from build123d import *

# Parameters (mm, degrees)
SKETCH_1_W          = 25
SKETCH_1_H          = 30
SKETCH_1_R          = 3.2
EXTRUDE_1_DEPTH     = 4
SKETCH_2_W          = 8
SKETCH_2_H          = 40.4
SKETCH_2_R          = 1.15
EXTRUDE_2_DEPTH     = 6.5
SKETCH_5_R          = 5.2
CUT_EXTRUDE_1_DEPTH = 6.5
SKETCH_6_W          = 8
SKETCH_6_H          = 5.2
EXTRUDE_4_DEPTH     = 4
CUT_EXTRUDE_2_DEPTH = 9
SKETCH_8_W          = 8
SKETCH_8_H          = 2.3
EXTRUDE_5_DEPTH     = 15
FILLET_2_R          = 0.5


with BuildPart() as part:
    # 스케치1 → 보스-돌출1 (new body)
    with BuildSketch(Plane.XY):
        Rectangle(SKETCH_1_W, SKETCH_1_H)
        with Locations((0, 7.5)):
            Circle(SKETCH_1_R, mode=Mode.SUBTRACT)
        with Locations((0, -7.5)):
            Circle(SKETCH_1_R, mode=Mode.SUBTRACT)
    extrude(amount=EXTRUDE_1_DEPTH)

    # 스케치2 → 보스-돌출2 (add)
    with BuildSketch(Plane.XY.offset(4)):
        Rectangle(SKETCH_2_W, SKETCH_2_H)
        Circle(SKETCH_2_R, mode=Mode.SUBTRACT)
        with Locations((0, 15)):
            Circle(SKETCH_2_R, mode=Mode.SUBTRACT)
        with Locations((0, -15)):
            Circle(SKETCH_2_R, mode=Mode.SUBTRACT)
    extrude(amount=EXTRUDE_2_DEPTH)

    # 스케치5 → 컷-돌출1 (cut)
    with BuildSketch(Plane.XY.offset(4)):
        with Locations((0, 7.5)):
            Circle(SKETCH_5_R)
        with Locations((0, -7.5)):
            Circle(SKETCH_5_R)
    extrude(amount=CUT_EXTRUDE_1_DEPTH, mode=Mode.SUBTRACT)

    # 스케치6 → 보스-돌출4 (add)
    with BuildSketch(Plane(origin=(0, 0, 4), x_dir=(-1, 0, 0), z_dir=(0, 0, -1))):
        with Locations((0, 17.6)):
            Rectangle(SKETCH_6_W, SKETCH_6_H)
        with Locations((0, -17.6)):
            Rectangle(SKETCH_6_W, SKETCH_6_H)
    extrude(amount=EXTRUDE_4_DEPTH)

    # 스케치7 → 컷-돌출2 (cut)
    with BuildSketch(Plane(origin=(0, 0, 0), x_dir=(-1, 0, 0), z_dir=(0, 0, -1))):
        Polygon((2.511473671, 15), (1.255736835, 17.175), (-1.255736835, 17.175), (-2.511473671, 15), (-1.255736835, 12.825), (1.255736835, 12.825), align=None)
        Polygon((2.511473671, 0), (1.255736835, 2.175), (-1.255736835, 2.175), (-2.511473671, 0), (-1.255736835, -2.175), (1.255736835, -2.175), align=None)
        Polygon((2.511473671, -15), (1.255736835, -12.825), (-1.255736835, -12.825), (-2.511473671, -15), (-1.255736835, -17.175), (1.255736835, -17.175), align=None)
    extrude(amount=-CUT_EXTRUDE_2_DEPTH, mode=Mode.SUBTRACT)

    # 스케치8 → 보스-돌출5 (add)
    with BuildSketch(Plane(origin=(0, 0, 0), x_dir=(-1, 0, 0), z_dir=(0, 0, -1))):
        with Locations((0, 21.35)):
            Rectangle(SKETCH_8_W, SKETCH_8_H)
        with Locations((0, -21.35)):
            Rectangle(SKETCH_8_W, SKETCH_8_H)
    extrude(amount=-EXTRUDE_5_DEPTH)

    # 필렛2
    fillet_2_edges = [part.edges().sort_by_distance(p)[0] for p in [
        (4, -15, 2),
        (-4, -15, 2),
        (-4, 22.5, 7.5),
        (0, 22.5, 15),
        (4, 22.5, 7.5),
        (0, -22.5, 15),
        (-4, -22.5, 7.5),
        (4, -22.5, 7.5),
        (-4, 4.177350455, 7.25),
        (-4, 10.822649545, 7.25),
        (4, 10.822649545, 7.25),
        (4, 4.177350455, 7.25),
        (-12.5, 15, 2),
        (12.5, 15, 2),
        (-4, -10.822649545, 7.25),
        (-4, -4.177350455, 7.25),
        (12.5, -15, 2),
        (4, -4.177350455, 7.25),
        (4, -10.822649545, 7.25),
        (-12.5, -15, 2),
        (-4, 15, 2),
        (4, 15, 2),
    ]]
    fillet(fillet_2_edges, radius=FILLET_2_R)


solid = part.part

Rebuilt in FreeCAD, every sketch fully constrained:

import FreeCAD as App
import Part
import Sketcher
from FreeCAD import Vector
Q = App.Units.Quantity


def edges_at(feature, points):
    """Names of the edges that pass closest to the given points."""
    edges = feature.Shape.Edges
    near = lambda p: min(range(len(edges)), key=lambda i: edges[i].distToShape(Part.Vertex(*p))[0])
    return sorted({f"Edge{near(p) + 1}" for p in points})


def add_polygon(sketch, points):
    """Adds a closed chain of lines whose ends are joined by coincident constraints."""
    first, n = sketch.GeometryCount, len(points)
    for a, b in zip(points, points[1:] + points[:1]):
        sketch.addGeometry(Part.LineSegment(App.Vector(*a, 0), App.Vector(*b, 0)), False)
    for i in range(n):
        sketch.addConstraint(Sketcher.Constraint("Coincident", first + i, 2, first + (i + 1) % n, 1))

doc = App.newDocument("Part")
body = doc.addObject("PartDesign::Body", "Body")

sketch1 = body.newObject("Sketcher::SketchObject", "Sketch")
sketch1.AttachmentSupport = (doc.getObject("XY_Plane"), [""])
sketch1.MapMode = "FlatFace"
add_polygon(sketch1, [(-12.5, 15), (-12.5, -15), (12.5, -15), (12.5, 15)])
sketch1.addGeometry(Part.Circle(Vector(0, -7.5, 0), Vector(0, 0, 1), 3.2), False)
sketch1.addGeometry(Part.Circle(Vector(0, 7.5, 0), Vector(0, 0, 1), 3.2), False)
sketch1.addConstraint(Sketcher.Constraint("Vertical", 0))
sketch1.addConstraint(Sketcher.Constraint("Horizontal", 1))
sketch1.addConstraint(Sketcher.Constraint("Vertical", 2))
sketch1.addConstraint(Sketcher.Constraint("Horizontal", 3))
sketch1.addConstraint(Sketcher.Constraint("Equal", 4, 5))
sketch1.addConstraint(Sketcher.Constraint("Symmetric", 4, 3, 5, 3, -1, 1))
sketch1.addConstraint(Sketcher.Constraint("Symmetric", 0, 2, 2, 2, -1, 1))
sketch1.addConstraint(Sketcher.Constraint("PointOnObject", 4, 3, -2))
sketch1.addConstraint(Sketcher.Constraint("Diameter", 4, 6.4))
sketch1.addConstraint(Sketcher.Constraint("DistanceX", 1, 1, 1, 2, 25.0))
sketch1.addConstraint(Sketcher.Constraint("DistanceY", 0, 2, 0, 1, 30.0))
sketch1.addConstraint(Sketcher.Constraint("DistanceY", 4, 3, 5, 3, 15.0))
pad1 = body.newObject("PartDesign::Pad", "Pad")
pad1.Profile = sketch1
pad1.Length = 4

sketch2 = body.newObject("Sketcher::SketchObject", "Sketch001")
sketch2.AttachmentSupport = (doc.getObject("XY_Plane"), [""])
sketch2.MapMode = "FlatFace"
sketch2.AttachmentOffset = App.Placement(Vector(0, 0, 4), App.Rotation())
add_polygon(sketch2, [(-4, 20.2), (-4, -20.2), (4, -20.2), (4, 20.2)])
sketch2.addGeometry(Part.Circle(Vector(0, -15, 0), Vector(0, 0, 1), 1.1), False)
sketch2.addGeometry(Part.Circle(Vector(0, 0, 0), Vector(0, 0, 1), 1.1), False)
sketch2.addGeometry(Part.Circle(Vector(0, 15, 0), Vector(0, 0, 1), 1.1), False)
sketch2.addConstraint(Sketcher.Constraint("Vertical", 0))
sketch2.addConstraint(Sketcher.Constraint("Horizontal", 1))
sketch2.addConstraint(Sketcher.Constraint("Vertical", 2))
sketch2.addConstraint(Sketcher.Constraint("Horizontal", 3))
sketch2.addConstraint(Sketcher.Constraint("Coincident", 5, 3, -1, 1))
sketch2.addConstraint(Sketcher.Constraint("Equal", 4, 5))
sketch2.addConstraint(Sketcher.Constraint("Equal", 5, 6))
sketch2.addConstraint(Sketcher.Constraint("Symmetric", 4, 3, 6, 3, -1, 1))
sketch2.addConstraint(Sketcher.Constraint("Symmetric", 0, 2, 2, 2, -1, 1))
sketch2.addConstraint(Sketcher.Constraint("PointOnObject", 4, 3, -2))
sketch2.addConstraint(Sketcher.Constraint("Diameter", 4, 2.3))
sketch2.addConstraint(Sketcher.Constraint("DistanceX", 1, 1, 1, 2, 8.0))
sketch2.addConstraint(Sketcher.Constraint("DistanceY", 0, 2, 0, 1, 40.4))
sketch2.addConstraint(Sketcher.Constraint("DistanceY", 4, 3, -1, 1, 15.0))
pad2 = body.newObject("PartDesign::Pad", "Pad001")
pad2.Profile = sketch2
pad2.Length = 6.5

sketch3 = body.newObject("Sketcher::SketchObject", "Sketch002")
sketch3.AttachmentSupport = (doc.getObject("XY_Plane"), [""])
sketch3.MapMode = "FlatFace"
sketch3.AttachmentOffset = App.Placement(Vector(0, 0, 4), App.Rotation())
sketch3.addGeometry(Part.Circle(Vector(0, 8, 0), Vector(0, 0, 1), 5), False)
sketch3.addGeometry(Part.Circle(Vector(0, -8, 0), Vector(0, 0, 1), 5), False)
sketch3.addConstraint(Sketcher.Constraint("Equal", 0, 1))
sketch3.addConstraint(Sketcher.Constraint("Symmetric", 0, 3, 1, 3, -1, 1))
sketch3.addConstraint(Sketcher.Constraint("PointOnObject", 0, 3, -2))
sketch3.addConstraint(Sketcher.Constraint("Diameter", 0, 10.4))
sketch3.addConstraint(Sketcher.Constraint("DistanceY", 1, 3, 0, 3, 15.0))
pocket1 = body.newObject("PartDesign::Pocket", "Pocket")
pocket1.Profile = sketch3
pocket1.Length = 6.5
pocket1.Reversed = True

sketch4 = body.newObject("Sketcher::SketchObject", "Sketch003")
sketch4.AttachmentSupport = (doc.getObject("XY_Plane"), [""])
sketch4.MapMode = "FlatFace"
sketch4.AttachmentOffset = App.Placement(Vector(0, 0, 4), App.Rotation())
add_polygon(sketch4, [(4, 20), (4, 15), (-4, 15), (-4, 20)])
add_polygon(sketch4, [(4, -15), (4, -20), (-4, -20), (-4, -15)])
sketch4.addConstraint(Sketcher.Constraint("Vertical", 0))
sketch4.addConstraint(Sketcher.Constraint("Horizontal", 1))
sketch4.addConstraint(Sketcher.Constraint("Vertical", 2))
sketch4.addConstraint(Sketcher.Constraint("Horizontal", 3))
sketch4.addConstraint(Sketcher.Constraint("Vertical", 4))
sketch4.addConstraint(Sketcher.Constraint("Horizontal", 5))
sketch4.addConstraint(Sketcher.Constraint("Vertical", 6))
sketch4.addConstraint(Sketcher.Constraint("Horizontal", 7))
sketch4.addConstraint(Sketcher.Constraint("Symmetric", 2, 2, 4, 2, -1, 1))
sketch4.addConstraint(Sketcher.Constraint("Symmetric", 0, 2, 6, 2, -1, 1))
sketch4.addConstraint(Sketcher.Constraint("Vertical", 3, 2, 4, 2))
sketch4.addConstraint(Sketcher.Constraint("DistanceX", 1, 2, 1, 1, 8.0))
sketch4.addConstraint(Sketcher.Constraint("DistanceY", 0, 2, 0, 1, 5.2))
sketch4.addConstraint(Sketcher.Constraint("DistanceY", -1, 1, 0, 2, 15.0))
pad3 = body.newObject("PartDesign::Pad", "Pad002")
pad3.Profile = sketch4
pad3.Length = 4
pad3.Reversed = True

sketch5 = body.newObject("Sketcher::SketchObject", "Sketch004")
sketch5.AttachmentSupport = (doc.getObject("XY_Plane"), [""])
sketch5.MapMode = "FlatFace"
add_polygon(sketch5, [(-2.5, 15), (-1.3, 17.2), (1.3, 17.2), (2.5, 15), (1.3, 12.8), (-1.3, 12.8)])
add_polygon(sketch5, [(-2.5, 0), (-1.3, 2.2), (1.3, 2.2), (2.5, 0), (1.3, -2.2), (-1.3, -2.2)])
add_polygon(sketch5, [(-2.5, -15), (-1.3, -12.8), (1.3, -12.8), (2.5, -15), (1.3, -17.2), (-1.3, -17.2)])
sketch5.addConstraint(Sketcher.Constraint("Horizontal", 1))
sketch5.addConstraint(Sketcher.Constraint("Horizontal", 4))
sketch5.addConstraint(Sketcher.Constraint("Horizontal", 7))
sketch5.addConstraint(Sketcher.Constraint("Horizontal", 10))
sketch5.addConstraint(Sketcher.Constraint("Horizontal", 13))
sketch5.addConstraint(Sketcher.Constraint("Horizontal", 16))
sketch5.addConstraint(Sketcher.Constraint("Symmetric", 6, 2, 9, 2, -1, 1))
sketch5.addConstraint(Sketcher.Constraint("Symmetric", 8, 2, 11, 2, -1, 1))
sketch5.addConstraint(Sketcher.Constraint("Symmetric", 3, 2, 12, 2, -1, 1))
sketch5.addConstraint(Sketcher.Constraint("Symmetric", 5, 2, 14, 2, -1, 1))
sketch5.addConstraint(Sketcher.Constraint("Symmetric", 0, 2, 15, 2, -1, 1))
sketch5.addConstraint(Sketcher.Constraint("Symmetric", 2, 2, 17, 2, -1, 1))
sketch5.addConstraint(Sketcher.Constraint("Symmetric", 2, 2, 5, 2, -2))
sketch5.addConstraint(Sketcher.Constraint("PointOnObject", 8, 2, -1))
sketch5.addConstraint(Sketcher.Constraint("Parallel", 0, 3))
sketch5.addConstraint(Sketcher.Constraint("Parallel", 2, 5))
sketch5.addConstraint(Sketcher.Constraint("Parallel", 3, 6))
sketch5.addConstraint(Sketcher.Constraint("Parallel", 5, 8))
sketch5.addConstraint(Sketcher.Constraint("Parallel", 8, 11))
sketch5.addConstraint(Sketcher.Constraint("Parallel", 11, 14))
sketch5.addConstraint(Sketcher.Constraint("Parallel", 14, 17))
sketch5.addConstraint(Sketcher.Constraint("Vertical", 1, 2, 3, 2))
sketch5.addConstraint(Sketcher.Constraint("Vertical", 0, 2, 4, 2))
sketch5.addConstraint(Sketcher.Constraint("Vertical", 4, 2, 6, 2))
sketch5.addConstraint(Sketcher.Constraint("Vertical", 2, 2, 8, 2))
sketch5.addConstraint(Sketcher.Constraint("Angle", 0, Q("60 deg")))
sketch5.addConstraint(Sketcher.Constraint("DistanceY", -1, 1, 2, 2, 15.0))
sketch5.addConstraint(Sketcher.Constraint("DistanceY", 3, 2, 1, 2, 4.35))
sketch5.addConstraint(Sketcher.Constraint("DistanceX", 1, 1, 1, 2, 2.511474))
pocket2 = body.newObject("PartDesign::Pocket", "Pocket001")
pocket2.Profile = sketch5
pocket2.Length = 9
pocket2.Reversed = True

sketch6 = body.newObject("Sketcher::SketchObject", "Sketch005")
sketch6.AttachmentSupport = (doc.getObject("XY_Plane"), [""])
sketch6.MapMode = "FlatFace"
add_polygon(sketch6, [(4, 22.5), (4, 20.2), (-4, 20.2), (-4, 22.5)])
add_polygon(sketch6, [(4, -20.2), (4, -22.5), (-4, -22.5), (-4, -20.2)])
sketch6.addConstraint(Sketcher.Constraint("Vertical", 0))
sketch6.addConstraint(Sketcher.Constraint("Horizontal", 1))
sketch6.addConstraint(Sketcher.Constraint("Vertical", 2))
sketch6.addConstraint(Sketcher.Constraint("Horizontal", 3))
sketch6.addConstraint(Sketcher.Constraint("Vertical", 4))
sketch6.addConstraint(Sketcher.Constraint("Horizontal", 5))
sketch6.addConstraint(Sketcher.Constraint("Vertical", 6))
sketch6.addConstraint(Sketcher.Constraint("Horizontal", 7))
sketch6.addConstraint(Sketcher.Constraint("Symmetric", 2, 2, 4, 2, -1, 1))
sketch6.addConstraint(Sketcher.Constraint("Symmetric", 0, 2, 6, 2, -1, 1))
sketch6.addConstraint(Sketcher.Constraint("Vertical", 3, 2, 4, 2))
sketch6.addConstraint(Sketcher.Constraint("DistanceX", 1, 2, 1, 1, 8.0))
sketch6.addConstraint(Sketcher.Constraint("DistanceY", 0, 2, 0, 1, 2.3))
sketch6.addConstraint(Sketcher.Constraint("DistanceY", 4, 2, 3, 2, 45.0))
pad4 = body.newObject("PartDesign::Pad", "Pad003")
pad4.Profile = sketch6
pad4.Length = 15
doc.recompute()

fillet = body.newObject("PartDesign::Fillet", "Fillet")
fillet.Base = (pad4, edges_at(pad4, [
    (4, -15, 2),
    (-4, -15, 2),
    (-4, 22.5, 7.5),
    (0, 22.5, 15),
    (4, 22.5, 7.5),
    (0, -22.5, 15),
    (-4, -22.5, 7.5),
    (4, -22.5, 7.5),
    (-4, 4.177, 7.25),
    (-4, 10.823, 7.25),
    (4, 10.823, 7.25),
    (4, 4.177, 7.25),
    (-12.5, 15, 2),
    (12.5, 15, 2),
    (-4, -10.823, 7.25),
    (-4, -4.177, 7.25),
    (12.5, -15, 2),
    (4, -4.177, 7.25),
    (4, -10.823, 7.25),
    (-12.5, -15, 2),
    (-4, 15, 2),
    (4, 15, 2),
]))
fillet.Radius = 0.5

doc.recompute()
